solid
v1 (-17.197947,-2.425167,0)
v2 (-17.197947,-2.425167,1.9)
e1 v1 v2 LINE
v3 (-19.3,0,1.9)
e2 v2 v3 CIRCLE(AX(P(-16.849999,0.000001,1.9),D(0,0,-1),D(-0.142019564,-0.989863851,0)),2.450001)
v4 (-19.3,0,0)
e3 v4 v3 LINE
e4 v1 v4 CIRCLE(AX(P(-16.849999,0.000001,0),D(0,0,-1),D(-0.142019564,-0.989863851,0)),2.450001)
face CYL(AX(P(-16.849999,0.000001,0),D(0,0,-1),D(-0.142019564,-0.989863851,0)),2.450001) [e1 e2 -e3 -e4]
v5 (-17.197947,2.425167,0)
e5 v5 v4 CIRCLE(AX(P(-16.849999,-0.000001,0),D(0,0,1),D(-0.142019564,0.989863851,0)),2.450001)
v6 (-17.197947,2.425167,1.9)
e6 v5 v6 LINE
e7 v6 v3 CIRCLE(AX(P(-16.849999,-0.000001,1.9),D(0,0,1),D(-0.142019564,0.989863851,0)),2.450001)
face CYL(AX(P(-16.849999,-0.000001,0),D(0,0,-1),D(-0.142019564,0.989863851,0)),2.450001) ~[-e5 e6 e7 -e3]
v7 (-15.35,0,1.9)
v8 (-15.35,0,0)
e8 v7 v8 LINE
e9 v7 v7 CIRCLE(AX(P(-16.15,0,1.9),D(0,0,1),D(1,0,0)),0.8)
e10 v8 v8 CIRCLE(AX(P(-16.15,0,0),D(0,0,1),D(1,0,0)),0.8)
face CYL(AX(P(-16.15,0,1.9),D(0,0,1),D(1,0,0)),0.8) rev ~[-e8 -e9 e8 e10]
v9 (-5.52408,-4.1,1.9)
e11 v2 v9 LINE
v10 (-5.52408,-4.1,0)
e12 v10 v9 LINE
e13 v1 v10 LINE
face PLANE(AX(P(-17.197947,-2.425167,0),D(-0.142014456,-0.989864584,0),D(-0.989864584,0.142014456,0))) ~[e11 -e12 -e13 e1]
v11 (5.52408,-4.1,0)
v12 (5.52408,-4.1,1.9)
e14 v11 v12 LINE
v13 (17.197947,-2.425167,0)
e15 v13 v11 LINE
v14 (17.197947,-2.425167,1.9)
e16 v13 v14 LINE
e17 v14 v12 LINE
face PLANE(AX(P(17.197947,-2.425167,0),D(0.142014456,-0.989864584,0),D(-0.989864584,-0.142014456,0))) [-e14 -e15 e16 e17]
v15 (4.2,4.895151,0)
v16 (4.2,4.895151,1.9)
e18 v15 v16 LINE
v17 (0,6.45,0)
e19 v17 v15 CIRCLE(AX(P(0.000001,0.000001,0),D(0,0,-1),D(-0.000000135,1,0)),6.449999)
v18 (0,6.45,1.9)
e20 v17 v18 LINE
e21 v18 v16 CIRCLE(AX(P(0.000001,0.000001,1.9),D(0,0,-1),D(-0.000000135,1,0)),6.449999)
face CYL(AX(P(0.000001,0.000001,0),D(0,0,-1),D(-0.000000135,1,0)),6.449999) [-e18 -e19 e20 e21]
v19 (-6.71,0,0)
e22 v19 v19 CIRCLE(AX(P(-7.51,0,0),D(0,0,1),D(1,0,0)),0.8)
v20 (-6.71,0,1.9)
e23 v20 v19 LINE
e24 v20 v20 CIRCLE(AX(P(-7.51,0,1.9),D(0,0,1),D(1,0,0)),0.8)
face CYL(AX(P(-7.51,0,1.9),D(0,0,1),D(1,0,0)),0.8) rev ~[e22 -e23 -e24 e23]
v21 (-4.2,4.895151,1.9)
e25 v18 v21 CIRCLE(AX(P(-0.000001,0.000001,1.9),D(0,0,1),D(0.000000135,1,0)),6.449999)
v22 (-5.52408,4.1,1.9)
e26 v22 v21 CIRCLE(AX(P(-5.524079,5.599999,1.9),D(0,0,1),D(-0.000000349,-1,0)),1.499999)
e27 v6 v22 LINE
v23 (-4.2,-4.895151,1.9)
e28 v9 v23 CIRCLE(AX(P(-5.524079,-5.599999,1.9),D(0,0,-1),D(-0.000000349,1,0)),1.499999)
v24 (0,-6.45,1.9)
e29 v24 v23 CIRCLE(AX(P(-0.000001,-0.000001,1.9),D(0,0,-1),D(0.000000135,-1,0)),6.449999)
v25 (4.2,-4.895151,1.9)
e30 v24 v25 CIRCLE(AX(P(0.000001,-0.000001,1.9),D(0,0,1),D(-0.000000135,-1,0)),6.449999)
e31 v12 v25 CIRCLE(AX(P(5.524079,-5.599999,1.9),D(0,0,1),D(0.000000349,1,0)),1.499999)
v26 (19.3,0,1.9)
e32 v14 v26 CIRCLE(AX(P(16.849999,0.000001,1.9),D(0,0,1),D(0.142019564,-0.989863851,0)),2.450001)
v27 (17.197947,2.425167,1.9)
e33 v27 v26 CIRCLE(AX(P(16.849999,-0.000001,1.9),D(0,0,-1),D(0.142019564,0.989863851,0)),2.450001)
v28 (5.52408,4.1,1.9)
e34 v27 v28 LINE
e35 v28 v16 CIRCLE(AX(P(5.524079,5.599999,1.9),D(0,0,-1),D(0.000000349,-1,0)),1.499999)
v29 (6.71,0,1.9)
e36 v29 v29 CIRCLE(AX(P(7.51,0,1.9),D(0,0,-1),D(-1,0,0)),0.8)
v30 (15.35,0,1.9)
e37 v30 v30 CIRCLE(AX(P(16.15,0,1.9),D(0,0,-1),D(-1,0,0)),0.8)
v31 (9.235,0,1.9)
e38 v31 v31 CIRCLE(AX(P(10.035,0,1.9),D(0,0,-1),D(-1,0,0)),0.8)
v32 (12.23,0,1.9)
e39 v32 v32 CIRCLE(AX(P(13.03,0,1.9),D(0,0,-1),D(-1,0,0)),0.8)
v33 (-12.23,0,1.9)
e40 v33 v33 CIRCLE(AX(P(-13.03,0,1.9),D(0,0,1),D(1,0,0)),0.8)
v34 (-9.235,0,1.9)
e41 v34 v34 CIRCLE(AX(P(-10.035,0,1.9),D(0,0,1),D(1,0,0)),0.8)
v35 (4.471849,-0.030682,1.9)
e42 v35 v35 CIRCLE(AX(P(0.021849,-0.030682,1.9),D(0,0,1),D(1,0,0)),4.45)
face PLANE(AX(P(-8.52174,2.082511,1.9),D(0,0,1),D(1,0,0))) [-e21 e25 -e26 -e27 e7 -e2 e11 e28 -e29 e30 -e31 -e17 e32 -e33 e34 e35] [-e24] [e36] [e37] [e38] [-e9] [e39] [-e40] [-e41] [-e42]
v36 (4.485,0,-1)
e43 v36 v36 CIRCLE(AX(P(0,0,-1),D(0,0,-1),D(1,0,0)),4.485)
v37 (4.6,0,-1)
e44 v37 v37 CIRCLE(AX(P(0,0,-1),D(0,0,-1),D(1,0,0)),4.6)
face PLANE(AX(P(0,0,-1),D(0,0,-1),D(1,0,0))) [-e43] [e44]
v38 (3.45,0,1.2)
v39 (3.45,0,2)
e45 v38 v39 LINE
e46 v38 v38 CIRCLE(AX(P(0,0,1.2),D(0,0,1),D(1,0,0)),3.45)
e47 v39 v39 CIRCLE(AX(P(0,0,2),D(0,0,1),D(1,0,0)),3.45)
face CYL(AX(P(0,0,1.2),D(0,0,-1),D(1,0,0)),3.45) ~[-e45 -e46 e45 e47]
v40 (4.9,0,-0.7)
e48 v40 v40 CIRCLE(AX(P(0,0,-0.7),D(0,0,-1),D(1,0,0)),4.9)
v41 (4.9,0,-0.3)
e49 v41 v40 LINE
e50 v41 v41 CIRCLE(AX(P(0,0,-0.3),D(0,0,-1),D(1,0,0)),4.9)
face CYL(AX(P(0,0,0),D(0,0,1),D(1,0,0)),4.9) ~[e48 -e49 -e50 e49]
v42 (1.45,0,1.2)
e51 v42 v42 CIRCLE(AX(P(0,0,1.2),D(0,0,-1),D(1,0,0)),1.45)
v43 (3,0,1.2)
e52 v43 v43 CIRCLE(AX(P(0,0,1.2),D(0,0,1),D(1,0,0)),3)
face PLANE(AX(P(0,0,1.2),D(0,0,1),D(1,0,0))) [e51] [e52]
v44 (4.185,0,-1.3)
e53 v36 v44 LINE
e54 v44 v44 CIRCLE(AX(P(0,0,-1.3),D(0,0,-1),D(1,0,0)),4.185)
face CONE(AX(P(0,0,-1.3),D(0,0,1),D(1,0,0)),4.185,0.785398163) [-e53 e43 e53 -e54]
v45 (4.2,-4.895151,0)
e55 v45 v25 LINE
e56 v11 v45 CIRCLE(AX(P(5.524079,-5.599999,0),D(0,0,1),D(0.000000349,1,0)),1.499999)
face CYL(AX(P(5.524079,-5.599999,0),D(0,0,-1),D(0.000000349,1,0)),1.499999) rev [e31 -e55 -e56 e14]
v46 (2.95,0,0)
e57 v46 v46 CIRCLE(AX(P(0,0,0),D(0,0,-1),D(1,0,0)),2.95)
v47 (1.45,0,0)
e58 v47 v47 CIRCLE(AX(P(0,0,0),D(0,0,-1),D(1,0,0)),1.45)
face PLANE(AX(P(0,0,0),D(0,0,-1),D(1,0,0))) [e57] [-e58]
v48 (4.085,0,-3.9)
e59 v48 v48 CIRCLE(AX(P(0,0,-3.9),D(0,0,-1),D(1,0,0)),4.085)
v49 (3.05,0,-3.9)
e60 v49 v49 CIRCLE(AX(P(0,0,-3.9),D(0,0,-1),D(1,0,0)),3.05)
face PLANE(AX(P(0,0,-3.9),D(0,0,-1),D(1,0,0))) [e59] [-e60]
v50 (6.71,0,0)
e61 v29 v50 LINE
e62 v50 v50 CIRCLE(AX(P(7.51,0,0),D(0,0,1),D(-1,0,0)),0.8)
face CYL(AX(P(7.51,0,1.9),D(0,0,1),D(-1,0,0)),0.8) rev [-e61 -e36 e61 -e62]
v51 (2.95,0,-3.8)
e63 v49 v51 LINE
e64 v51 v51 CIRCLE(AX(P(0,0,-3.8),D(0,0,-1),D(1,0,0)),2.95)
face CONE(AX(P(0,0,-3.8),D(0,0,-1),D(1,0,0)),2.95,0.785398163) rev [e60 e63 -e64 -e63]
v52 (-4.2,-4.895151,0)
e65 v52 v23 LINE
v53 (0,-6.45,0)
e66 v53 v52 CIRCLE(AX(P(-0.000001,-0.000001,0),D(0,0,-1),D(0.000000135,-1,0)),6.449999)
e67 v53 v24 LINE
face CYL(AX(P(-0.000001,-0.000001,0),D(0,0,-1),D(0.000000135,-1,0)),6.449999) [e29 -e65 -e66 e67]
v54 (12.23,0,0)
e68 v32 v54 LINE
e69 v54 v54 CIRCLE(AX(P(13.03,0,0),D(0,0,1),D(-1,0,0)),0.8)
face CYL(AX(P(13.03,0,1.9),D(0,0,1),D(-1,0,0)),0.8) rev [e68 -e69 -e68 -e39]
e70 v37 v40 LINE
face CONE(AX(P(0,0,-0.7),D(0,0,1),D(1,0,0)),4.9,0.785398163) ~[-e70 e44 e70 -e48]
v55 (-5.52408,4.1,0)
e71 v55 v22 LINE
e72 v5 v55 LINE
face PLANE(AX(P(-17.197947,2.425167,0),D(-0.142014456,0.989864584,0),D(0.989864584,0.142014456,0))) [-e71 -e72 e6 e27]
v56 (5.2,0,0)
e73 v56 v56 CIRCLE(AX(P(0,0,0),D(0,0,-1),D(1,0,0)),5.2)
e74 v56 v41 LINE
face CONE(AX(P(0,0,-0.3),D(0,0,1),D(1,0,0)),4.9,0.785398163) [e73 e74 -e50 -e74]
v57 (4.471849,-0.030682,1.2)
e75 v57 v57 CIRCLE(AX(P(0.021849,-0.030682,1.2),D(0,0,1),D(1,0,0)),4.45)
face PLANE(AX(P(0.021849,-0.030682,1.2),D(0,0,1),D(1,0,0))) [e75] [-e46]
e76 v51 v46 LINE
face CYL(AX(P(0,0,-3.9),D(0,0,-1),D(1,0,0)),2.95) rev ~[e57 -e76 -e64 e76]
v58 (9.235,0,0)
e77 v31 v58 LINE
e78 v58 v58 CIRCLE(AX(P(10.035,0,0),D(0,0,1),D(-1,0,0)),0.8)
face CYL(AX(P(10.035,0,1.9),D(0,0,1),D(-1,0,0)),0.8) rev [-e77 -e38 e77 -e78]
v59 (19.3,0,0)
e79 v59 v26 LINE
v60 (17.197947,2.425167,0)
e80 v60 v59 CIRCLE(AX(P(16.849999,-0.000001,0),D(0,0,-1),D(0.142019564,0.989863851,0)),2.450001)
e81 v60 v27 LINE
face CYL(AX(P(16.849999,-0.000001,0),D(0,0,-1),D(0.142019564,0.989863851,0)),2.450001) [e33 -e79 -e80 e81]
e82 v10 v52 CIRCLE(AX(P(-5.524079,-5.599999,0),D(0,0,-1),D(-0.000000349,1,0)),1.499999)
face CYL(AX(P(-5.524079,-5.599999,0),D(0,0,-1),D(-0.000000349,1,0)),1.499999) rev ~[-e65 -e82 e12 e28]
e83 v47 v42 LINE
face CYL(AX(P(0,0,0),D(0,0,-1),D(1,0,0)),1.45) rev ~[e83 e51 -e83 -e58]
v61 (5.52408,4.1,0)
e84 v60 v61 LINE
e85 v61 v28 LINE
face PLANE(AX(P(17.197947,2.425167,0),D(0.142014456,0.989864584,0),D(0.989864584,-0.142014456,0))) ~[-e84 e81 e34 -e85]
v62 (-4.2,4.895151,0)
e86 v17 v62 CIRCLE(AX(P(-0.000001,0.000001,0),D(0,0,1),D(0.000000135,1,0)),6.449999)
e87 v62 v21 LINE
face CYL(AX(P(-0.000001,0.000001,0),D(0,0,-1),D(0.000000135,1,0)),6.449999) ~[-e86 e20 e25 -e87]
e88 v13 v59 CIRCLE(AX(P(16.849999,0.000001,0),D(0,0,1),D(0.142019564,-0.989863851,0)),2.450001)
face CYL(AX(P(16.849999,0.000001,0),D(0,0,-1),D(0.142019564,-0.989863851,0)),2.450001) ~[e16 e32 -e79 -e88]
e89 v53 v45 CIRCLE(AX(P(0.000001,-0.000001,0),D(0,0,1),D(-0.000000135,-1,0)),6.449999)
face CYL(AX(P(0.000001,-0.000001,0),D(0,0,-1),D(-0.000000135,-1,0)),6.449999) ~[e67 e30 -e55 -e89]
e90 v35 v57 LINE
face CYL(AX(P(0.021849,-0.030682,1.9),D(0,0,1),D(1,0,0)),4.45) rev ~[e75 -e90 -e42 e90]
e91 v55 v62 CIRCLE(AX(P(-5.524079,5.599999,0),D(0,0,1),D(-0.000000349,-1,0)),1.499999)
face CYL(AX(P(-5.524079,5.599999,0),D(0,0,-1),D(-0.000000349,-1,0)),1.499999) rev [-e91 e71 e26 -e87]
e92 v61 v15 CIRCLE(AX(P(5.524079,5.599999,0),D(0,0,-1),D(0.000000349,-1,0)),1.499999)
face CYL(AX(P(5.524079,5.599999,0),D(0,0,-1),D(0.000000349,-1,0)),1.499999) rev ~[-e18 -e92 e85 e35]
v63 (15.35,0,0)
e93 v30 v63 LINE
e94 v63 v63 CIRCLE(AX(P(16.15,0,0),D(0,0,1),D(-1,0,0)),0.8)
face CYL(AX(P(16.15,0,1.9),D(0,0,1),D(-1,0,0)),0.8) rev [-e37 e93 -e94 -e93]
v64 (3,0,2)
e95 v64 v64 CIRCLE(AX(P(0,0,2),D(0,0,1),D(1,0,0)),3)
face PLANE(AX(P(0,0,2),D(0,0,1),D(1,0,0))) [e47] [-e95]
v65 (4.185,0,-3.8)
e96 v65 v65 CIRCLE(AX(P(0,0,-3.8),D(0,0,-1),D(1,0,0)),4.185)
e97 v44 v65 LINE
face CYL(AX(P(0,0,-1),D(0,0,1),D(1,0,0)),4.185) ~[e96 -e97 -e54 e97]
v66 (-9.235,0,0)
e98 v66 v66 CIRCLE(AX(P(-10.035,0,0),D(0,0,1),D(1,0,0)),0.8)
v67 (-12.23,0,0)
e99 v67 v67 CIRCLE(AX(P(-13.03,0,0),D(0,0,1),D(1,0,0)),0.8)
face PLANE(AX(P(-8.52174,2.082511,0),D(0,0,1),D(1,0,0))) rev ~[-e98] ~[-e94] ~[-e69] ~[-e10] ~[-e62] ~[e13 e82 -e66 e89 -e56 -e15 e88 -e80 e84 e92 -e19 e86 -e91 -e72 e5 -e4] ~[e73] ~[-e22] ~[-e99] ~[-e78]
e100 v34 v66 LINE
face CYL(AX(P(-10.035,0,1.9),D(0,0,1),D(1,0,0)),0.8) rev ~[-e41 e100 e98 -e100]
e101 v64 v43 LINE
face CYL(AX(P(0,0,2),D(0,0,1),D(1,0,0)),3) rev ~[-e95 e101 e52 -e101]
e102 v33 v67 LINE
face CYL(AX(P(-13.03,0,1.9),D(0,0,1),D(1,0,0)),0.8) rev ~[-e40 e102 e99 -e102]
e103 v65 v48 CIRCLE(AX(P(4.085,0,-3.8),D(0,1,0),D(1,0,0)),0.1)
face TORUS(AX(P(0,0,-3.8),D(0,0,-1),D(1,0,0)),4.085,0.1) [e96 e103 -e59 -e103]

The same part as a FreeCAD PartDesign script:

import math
import FreeCAD as App
import Part
import Sketcher

V = App.Vector


def edges_at(feature, points):
    """Names of the edges that pass closest to the given points."""
    edges = feature.Shape.Edges
    near = lambda p: min(range(len(edges)), key=lambda i: edges[i].distToShape(Part.Vertex(*p))[0])
    return sorted({f"Edge{near(p) + 1}" for p in points})

doc = App.newDocument("Part")
body = doc.addObject("PartDesign::Body", "Body")

sketch1 = body.newObject("Sketcher::SketchObject", "Sketch")
sketch1.AttachmentSupport = (doc.getObject("XY_Plane"), [""])
sketch1.MapMode = "FlatFace"
sketch1.addGeometry(Part.ArcOfCircle(Part.Circle(V(-0.000001, 0.000001, 0), V(0, 0, 1), 6.449999), math.radians(89.999992), math.radians(130.629328)), False)
sketch1.addGeometry(Part.ArcOfCircle(Part.Circle(V(-5.524079, 5.599999, 0), V(0, 0, 1), 1.499999), math.radians(-90.00002), math.radians(-28.027742)), False)
sketch1.addGeometry(Part.LineSegment(V(-5.52408, 4.1, 0), V(-17.197947, 2.425167, 0)), False)
sketch1.addGeometry(Part.ArcOfCircle(Part.Circle(V(-16.849999, -0.000001, 0), V(0, 0, 1), 2.450001), math.radians(98.164727), math.radians(179.999988)), False)
sketch1.addGeometry(Part.LineSegment(V(-19.3, 0, 0), V(0, 0, 0)), False)
sketch1.addGeometry(Part.LineSegment(V(0, 0, 0), V(0, 6.45, 0)), False)
sketch1.addConstraint(Sketcher.Constraint("Coincident", 0, 2, 1, 2))
sketch1.addConstraint(Sketcher.Constraint("Coincident", 1, 1, 2, 1))
sketch1.addConstraint(Sketcher.Constraint("Coincident", 2, 2, 3, 1))
sketch1.addConstraint(Sketcher.Constraint("Coincident", 3, 2, 4, 1))
sketch1.addConstraint(Sketcher.Constraint("Coincident", 4, 2, 5, 1))
sketch1.addConstraint(Sketcher.Constraint("Coincident", 5, 2, 0, 1))
sketch1.addConstraint(Sketcher.Constraint("Horizontal", 4))
sketch1.addConstraint(Sketcher.Constraint("Vertical", 5))
sketch1.addConstraint(Sketcher.Constraint("Coincident", 0, 3, -1, 1))
sketch1.addConstraint(Sketcher.Constraint("Coincident", 4, 2, -1, 1))
sketch1.addConstraint(Sketcher.Constraint("PointOnObject", 3, 3, -1))
sketch1.addConstraint(Sketcher.Constraint("Radius", 1, 1.499999))
sketch1.addConstraint(Sketcher.Constraint("Radius", 0, 6.449999))
sketch1.addConstraint(Sketcher.Constraint("Radius", 3, 2.450001))
sketch1.addConstraint(Sketcher.Constraint("DistanceX", 4, 1, 4, 2, 19.3))
sketch1.addConstraint(Sketcher.Constraint("DistanceY", -1, 1, 1, 3, 5.599999))
sketch1.addConstraint(Sketcher.Constraint("DistanceX", 0, 2, -1, 1, 4.2))
sketch1.addConstraint(Sketcher.Constraint("DistanceX", 1, 1, -1, 1, 5.52408))
sketch1.addConstraint(Sketcher.Constraint("DistanceX", 2, 2, 3, 3, 0.347948))
pad1 = body.newObject("PartDesign::Pad", "Pad")
pad1.Profile = sketch1
pad1.Length = 1.9
body2 = doc.addObject("PartDesign::Body", "Body001")
doc.recompute()

mirroring = doc.addObject("Part::Mirroring", "Mirroring")
mirroring.Source = body
mirroring.Base = V(0, 0, 0)
mirroring.Normal = V(1, 0, 0)
body2.BaseFeature = mirroring
doc.recompute()

boolean = body2.newObject("PartDesign::Boolean", "Boolean")
boolean.Type = "Fuse"
boolean.addObjects([body])
body3 = doc.addObject("PartDesign::Body", "Body002")
doc.recompute()

mirroring2 = doc.addObject("Part::Mirroring", "Mirroring001")
mirroring2.Source = body2
mirroring2.Base = V(0, 0, 0)
mirroring2.Normal = V(0, 1, 0)
body3.BaseFeature = mirroring2
doc.recompute()

boolean2 = body3.newObject("PartDesign::Boolean", "Boolean001")
boolean2.Type = "Fuse"
boolean2.addObjects([body2])

sketch2 = body3.newObject("Sketcher::SketchObject", "Sketch001")
sketch2.AttachmentSupport = (doc.getObject("XY_Plane002"), [""])
sketch2.MapMode = "FlatFace"
sketch2.AttachmentOffset = App.Placement(V(0, 0, 1.9), App.Rotation())
sketch2.addGeometry(Part.Circle(V(0.021849, -0.030682, 0), V(0, 0, 1), 4.45), False)
sketch2.addConstraint(Sketcher.Constraint("Diameter", 0, 8.9))
sketch2.addConstraint(Sketcher.Constraint("DistanceX", -1, 1, 0, 3, 0.021849))
sketch2.addConstraint(Sketcher.Constraint("DistanceY", 0, 3, -1, 1, 0.030682))
pocket1 = body3.newObject("PartDesign::Pocket", "Pocket")
pocket1.Profile = sketch2
pocket1.Length = 0.7

sketch3 = body3.newObject("Sketcher::SketchObject", "Sketch002")
sketch3.AttachmentSupport = (doc.getObject("XY_Plane002"), [""])
sketch3.MapMode = "FlatFace"
sketch3.AttachmentOffset = App.Placement(V(0, 0, 1.2), App.Rotation())
sketch3.addGeometry(Part.Circle(V(0, 0, 0), V(0, 0, 1), 3.45), False)
sketch3.addConstraint(Sketcher.Constraint("Coincident", 0, 3, -1, 1))
sketch3.addConstraint(Sketcher.Constraint("Diameter", 0, 6.9))
pad2 = body3.newObject("PartDesign::Pad", "Pad001")
pad2.Profile = sketch3
pad2.Length = 0.8

sketch4 = body3.newObject("Sketcher::SketchObject", "Sketch003")
sketch4.AttachmentSupport = (doc.getObject("XY_Plane002"), [""])
sketch4.MapMode = "FlatFace"
sketch4.AttachmentOffset = App.Placement(V(0, 0, 2), App.Rotation())
sketch4.addGeometry(Part.Circle(V(0, 0, 0), V(0, 0, 1), 3), False)
sketch4.addConstraint(Sketcher.Constraint("Coincident", 0, 3, -1, 1))
sketch4.addConstraint(Sketcher.Constraint("Diameter", 0, 6.0))
pocket2 = body3.newObject("PartDesign::Pocket", "Pocket001")
pocket2.Profile = sketch4
pocket2.Length = 0.8

sketch5 = body3.newObject("Sketcher::SketchObject", "Sketch004")
sketch5.AttachmentSupport = (doc.getObject("XY_Plane002"), [""])
sketch5.MapMode = "FlatFace"
sketch5.addGeometry(Part.Circle(V(0, 0, 0), V(0, 0, 1), 4.9), False)
sketch5.addConstraint(Sketcher.Constraint("Coincident", 0, 3, -1, 1))
sketch5.addConstraint(Sketcher.Constraint("Diameter", 0, 9.8))
pad3 = body3.newObject("PartDesign::Pad", "Pad002")
pad3.Profile = sketch5
pad3.Length = 1
pad3.Reversed = True

sketch6 = body3.newObject("Sketcher::SketchObject", "Sketch005")
sketch6.AttachmentSupport = (doc.getObject("XY_Plane002"), [""])
sketch6.MapMode = "FlatFace"
sketch6.AttachmentOffset = App.Placement(V(0, 0, -1), App.Rotation())
sketch6.addGeometry(Part.Circle(V(0, 0, 0), V(0, 0, 1), 4.185), False)
sketch6.addConstraint(Sketcher.Constraint("Coincident", 0, 3, -1, 1))
sketch6.addConstraint(Sketcher.Constraint("Diameter", 0, 8.37))
pad4 = body3.newObject("PartDesign::Pad", "Pad003")
pad4.Profile = sketch6
pad4.Length = 2.9
pad4.Reversed = True

sketch7 = body3.newObject("Sketcher::SketchObject", "Sketch006")
sketch7.AttachmentSupport = (doc.getObject("XY_Plane002"), [""])
sketch7.MapMode = "FlatFace"
sketch7.AttachmentOffset = App.Placement(V(0, 0, -3.9), App.Rotation())
sketch7.addGeometry(Part.Circle(V(0, 0, 0), V(0, 0, 1), 2.95), False)
sketch7.addConstraint(Sketcher.Constraint("Coincident", 0, 3, -1, 1))
sketch7.addConstraint(Sketcher.Constraint("Diameter", 0, 5.9))
pocket3 = body3.newObject("PartDesign::Pocket", "Pocket002")
pocket3.Profile = sketch7
pocket3.Length = 3.9
pocket3.Reversed = True

sketch8 = body3.newObject("Sketcher::SketchObject", "Sketch007")
sketch8.AttachmentSupport = (doc.getObject("XY_Plane002"), [""])
sketch8.MapMode = "FlatFace"
sketch8.addGeometry(Part.Circle(V(0, 0, 0), V(0, 0, 1), 1.45), False)
sketch8.addConstraint(Sketcher.Constraint("Coincident", 0, 3, -1, 1))
sketch8.addConstraint(Sketcher.Constraint("Diameter", 0, 2.9))
pocket4 = body3.newObject("PartDesign::Pocket", "Pocket003")
pocket4.Profile = sketch8
pocket4.Type = "ThroughAll"
pocket4.Reversed = True
doc.recompute()

chamfer = body3.newObject("PartDesign::Chamfer", "Chamfer")
chamfer.Base = (pocket4, edges_at(pocket4, [(-4.9, 0, 0)]))
chamfer.Size = 0.3
doc.recompute()

chamfer2 = body3.newObject("PartDesign::Chamfer", "Chamfer001")
chamfer2.Base = (chamfer, edges_at(chamfer, [(-4.185, 0, -1)]))
chamfer2.Size = 0.3
doc.recompute()

chamfer3 = body3.newObject("PartDesign::Chamfer", "Chamfer002")
chamfer3.Base = (chamfer2, edges_at(chamfer2, [(-4.9, 0, -1)]))
chamfer3.Size = 0.3

sketch9 = body3.newObject("Sketcher::SketchObject", "Sketch008")
sketch9.AttachmentSupport = (doc.getObject("XY_Plane002"), [""])
sketch9.MapMode = "FlatFace"
sketch9.AttachmentOffset = App.Placement(V(0, 0, 1.9), App.Rotation())
sketch9.addGeometry(Part.Circle(V(-16.15, 0, 0), V(0, 0, 1), 0.8), False)
sketch9.addGeometry(Part.Circle(V(-13.03, 0, 0), V(0, 0, 1), 0.8), False)
sketch9.addGeometry(Part.Circle(V(-10.035, 0, 0), V(0, 0, 1), 0.8), False)
sketch9.addGeometry(Part.Circle(V(-7.51, 0, 0), V(0, 0, 1), 0.8), False)
sketch9.addConstraint(Sketcher.Constraint("Equal", 0, 1))
sketch9.addConstraint(Sketcher.Constraint("Equal", 1, 2))
sketch9.addConstraint(Sketcher.Constraint("Equal", 2, 3))
sketch9.addConstraint(Sketcher.Constraint("PointOnObject", 0, 3, -1))
sketch9.addConstraint(Sketcher.Constraint("PointOnObject", 1, 3, -1))
sketch9.addConstraint(Sketcher.Constraint("PointOnObject", 2, 3, -1))
sketch9.addConstraint(Sketcher.Constraint("PointOnObject", 3, 3, -1))
sketch9.addConstraint(Sketcher.Constraint("Diameter", 0, 1.6))
sketch9.addConstraint(Sketcher.Constraint("DistanceX", 0, 3, -1, 1, 16.15))
sketch9.addConstraint(Sketcher.Constraint("DistanceX", 1, 3, -1, 1, 13.03))
sketch9.addConstraint(Sketcher.Constraint("DistanceX", 3, 3, -1, 1, 7.51))
sketch9.addConstraint(Sketcher.Constraint("DistanceX", 2, 3, -1, 1, 10.035))
pocket5 = body3.newObject("PartDesign::Pocket", "Pocket004")
pocket5.Profile = sketch9
pocket5.Type = "ThroughAll"
doc.recompute()

mirrored = body3.newObject("PartDesign::Mirrored", "Mirrored")
mirrored.Originals = [pocket5]
mirrored.MirrorPlane = (doc.getObject("YZ_Plane002"), [""])
body3.Tip = mirrored
doc.recompute()

fillet = body3.newObject("PartDesign::Fillet", "Fillet")
fillet.Base = (mirrored, edges_at(mirrored, [(-4.185, 0, -3.9)]))
fillet.Radius = 0.1
doc.recompute()

chamfer4 = body3.newObject("PartDesign::Chamfer", "Chamfer003")
chamfer4.Base = (fillet, edges_at(fillet, [(-2.95, 0, -3.9)]))
chamfer4.Size = 0.1
mirroring.Visibility = False
mirroring2.Visibility = False

doc.recompute()
